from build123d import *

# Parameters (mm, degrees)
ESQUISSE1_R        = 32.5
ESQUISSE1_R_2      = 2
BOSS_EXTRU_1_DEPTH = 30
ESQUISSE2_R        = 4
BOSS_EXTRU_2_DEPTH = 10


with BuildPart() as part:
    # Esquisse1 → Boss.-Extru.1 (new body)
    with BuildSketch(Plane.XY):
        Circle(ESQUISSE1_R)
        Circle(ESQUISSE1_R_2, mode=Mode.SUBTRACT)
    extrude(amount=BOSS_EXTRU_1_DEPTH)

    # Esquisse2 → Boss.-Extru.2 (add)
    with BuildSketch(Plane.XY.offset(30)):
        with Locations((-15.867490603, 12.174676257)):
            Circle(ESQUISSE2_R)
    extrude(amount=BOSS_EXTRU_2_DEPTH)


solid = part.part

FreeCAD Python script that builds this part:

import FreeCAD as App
import Part
import Sketcher

V = App.Vector

doc = App.newDocument("Part")
body = doc.addObject("PartDesign::Body", "Body")

# Sketch on XY plane
sketch1 = body.newObject("Sketcher::SketchObject", "Sketch")
sketch1.AttachmentSupport = (doc.getObject("XY_Plane"), [""])
sketch1.MapMode = "FlatFace"
sketch1.addGeometry([
    Part.Circle(V(0, 0, 0), V(0, 0, 1), 32.5),
    Part.Circle(V(0, 0, 0), V(0, 0, 1), 2),
], False)
sketch1.addConstraint([
    Sketcher.Constraint("Coincident", 0, 3, -1, 1),
    Sketcher.Constraint("Coincident", 1, 3, -1, 1),
    Sketcher.Constraint("Diameter", 0, 65.0),
    Sketcher.Constraint("Diameter", 1, 4.0),
])
pad1 = body.newObject("PartDesign::Pad", "Pad")
pad1.Profile = sketch1
pad1.Length = 30

# Sketch on XY plane
sketch2 = body.newObject("Sketcher::SketchObject", "Sketch001")
sketch2.AttachmentSupport = (doc.getObject("XY_Plane"), [""])
sketch2.MapMode = "FlatFace"
sketch2.AttachmentOffset = App.Placement(V(0, 0, 30), App.Rotation())
sketch2.addGeometry(Part.Circle(V(-15.9, 12.2, 0), V(0, 0, 1), 4), False)
sketch2.addConstraint([
    Sketcher.Constraint("Diameter", 0, 8.0),
    Sketcher.Constraint("DistanceX", 0, 3, -1, 1, 15.867491),
    Sketcher.Constraint("DistanceY", -1, 1, 0, 3, 12.174676),
])
pad2 = body.newObject("PartDesign::Pad", "Pad001")
pad2.Profile = sketch2
pad2.Length = 10

doc.recompute()
